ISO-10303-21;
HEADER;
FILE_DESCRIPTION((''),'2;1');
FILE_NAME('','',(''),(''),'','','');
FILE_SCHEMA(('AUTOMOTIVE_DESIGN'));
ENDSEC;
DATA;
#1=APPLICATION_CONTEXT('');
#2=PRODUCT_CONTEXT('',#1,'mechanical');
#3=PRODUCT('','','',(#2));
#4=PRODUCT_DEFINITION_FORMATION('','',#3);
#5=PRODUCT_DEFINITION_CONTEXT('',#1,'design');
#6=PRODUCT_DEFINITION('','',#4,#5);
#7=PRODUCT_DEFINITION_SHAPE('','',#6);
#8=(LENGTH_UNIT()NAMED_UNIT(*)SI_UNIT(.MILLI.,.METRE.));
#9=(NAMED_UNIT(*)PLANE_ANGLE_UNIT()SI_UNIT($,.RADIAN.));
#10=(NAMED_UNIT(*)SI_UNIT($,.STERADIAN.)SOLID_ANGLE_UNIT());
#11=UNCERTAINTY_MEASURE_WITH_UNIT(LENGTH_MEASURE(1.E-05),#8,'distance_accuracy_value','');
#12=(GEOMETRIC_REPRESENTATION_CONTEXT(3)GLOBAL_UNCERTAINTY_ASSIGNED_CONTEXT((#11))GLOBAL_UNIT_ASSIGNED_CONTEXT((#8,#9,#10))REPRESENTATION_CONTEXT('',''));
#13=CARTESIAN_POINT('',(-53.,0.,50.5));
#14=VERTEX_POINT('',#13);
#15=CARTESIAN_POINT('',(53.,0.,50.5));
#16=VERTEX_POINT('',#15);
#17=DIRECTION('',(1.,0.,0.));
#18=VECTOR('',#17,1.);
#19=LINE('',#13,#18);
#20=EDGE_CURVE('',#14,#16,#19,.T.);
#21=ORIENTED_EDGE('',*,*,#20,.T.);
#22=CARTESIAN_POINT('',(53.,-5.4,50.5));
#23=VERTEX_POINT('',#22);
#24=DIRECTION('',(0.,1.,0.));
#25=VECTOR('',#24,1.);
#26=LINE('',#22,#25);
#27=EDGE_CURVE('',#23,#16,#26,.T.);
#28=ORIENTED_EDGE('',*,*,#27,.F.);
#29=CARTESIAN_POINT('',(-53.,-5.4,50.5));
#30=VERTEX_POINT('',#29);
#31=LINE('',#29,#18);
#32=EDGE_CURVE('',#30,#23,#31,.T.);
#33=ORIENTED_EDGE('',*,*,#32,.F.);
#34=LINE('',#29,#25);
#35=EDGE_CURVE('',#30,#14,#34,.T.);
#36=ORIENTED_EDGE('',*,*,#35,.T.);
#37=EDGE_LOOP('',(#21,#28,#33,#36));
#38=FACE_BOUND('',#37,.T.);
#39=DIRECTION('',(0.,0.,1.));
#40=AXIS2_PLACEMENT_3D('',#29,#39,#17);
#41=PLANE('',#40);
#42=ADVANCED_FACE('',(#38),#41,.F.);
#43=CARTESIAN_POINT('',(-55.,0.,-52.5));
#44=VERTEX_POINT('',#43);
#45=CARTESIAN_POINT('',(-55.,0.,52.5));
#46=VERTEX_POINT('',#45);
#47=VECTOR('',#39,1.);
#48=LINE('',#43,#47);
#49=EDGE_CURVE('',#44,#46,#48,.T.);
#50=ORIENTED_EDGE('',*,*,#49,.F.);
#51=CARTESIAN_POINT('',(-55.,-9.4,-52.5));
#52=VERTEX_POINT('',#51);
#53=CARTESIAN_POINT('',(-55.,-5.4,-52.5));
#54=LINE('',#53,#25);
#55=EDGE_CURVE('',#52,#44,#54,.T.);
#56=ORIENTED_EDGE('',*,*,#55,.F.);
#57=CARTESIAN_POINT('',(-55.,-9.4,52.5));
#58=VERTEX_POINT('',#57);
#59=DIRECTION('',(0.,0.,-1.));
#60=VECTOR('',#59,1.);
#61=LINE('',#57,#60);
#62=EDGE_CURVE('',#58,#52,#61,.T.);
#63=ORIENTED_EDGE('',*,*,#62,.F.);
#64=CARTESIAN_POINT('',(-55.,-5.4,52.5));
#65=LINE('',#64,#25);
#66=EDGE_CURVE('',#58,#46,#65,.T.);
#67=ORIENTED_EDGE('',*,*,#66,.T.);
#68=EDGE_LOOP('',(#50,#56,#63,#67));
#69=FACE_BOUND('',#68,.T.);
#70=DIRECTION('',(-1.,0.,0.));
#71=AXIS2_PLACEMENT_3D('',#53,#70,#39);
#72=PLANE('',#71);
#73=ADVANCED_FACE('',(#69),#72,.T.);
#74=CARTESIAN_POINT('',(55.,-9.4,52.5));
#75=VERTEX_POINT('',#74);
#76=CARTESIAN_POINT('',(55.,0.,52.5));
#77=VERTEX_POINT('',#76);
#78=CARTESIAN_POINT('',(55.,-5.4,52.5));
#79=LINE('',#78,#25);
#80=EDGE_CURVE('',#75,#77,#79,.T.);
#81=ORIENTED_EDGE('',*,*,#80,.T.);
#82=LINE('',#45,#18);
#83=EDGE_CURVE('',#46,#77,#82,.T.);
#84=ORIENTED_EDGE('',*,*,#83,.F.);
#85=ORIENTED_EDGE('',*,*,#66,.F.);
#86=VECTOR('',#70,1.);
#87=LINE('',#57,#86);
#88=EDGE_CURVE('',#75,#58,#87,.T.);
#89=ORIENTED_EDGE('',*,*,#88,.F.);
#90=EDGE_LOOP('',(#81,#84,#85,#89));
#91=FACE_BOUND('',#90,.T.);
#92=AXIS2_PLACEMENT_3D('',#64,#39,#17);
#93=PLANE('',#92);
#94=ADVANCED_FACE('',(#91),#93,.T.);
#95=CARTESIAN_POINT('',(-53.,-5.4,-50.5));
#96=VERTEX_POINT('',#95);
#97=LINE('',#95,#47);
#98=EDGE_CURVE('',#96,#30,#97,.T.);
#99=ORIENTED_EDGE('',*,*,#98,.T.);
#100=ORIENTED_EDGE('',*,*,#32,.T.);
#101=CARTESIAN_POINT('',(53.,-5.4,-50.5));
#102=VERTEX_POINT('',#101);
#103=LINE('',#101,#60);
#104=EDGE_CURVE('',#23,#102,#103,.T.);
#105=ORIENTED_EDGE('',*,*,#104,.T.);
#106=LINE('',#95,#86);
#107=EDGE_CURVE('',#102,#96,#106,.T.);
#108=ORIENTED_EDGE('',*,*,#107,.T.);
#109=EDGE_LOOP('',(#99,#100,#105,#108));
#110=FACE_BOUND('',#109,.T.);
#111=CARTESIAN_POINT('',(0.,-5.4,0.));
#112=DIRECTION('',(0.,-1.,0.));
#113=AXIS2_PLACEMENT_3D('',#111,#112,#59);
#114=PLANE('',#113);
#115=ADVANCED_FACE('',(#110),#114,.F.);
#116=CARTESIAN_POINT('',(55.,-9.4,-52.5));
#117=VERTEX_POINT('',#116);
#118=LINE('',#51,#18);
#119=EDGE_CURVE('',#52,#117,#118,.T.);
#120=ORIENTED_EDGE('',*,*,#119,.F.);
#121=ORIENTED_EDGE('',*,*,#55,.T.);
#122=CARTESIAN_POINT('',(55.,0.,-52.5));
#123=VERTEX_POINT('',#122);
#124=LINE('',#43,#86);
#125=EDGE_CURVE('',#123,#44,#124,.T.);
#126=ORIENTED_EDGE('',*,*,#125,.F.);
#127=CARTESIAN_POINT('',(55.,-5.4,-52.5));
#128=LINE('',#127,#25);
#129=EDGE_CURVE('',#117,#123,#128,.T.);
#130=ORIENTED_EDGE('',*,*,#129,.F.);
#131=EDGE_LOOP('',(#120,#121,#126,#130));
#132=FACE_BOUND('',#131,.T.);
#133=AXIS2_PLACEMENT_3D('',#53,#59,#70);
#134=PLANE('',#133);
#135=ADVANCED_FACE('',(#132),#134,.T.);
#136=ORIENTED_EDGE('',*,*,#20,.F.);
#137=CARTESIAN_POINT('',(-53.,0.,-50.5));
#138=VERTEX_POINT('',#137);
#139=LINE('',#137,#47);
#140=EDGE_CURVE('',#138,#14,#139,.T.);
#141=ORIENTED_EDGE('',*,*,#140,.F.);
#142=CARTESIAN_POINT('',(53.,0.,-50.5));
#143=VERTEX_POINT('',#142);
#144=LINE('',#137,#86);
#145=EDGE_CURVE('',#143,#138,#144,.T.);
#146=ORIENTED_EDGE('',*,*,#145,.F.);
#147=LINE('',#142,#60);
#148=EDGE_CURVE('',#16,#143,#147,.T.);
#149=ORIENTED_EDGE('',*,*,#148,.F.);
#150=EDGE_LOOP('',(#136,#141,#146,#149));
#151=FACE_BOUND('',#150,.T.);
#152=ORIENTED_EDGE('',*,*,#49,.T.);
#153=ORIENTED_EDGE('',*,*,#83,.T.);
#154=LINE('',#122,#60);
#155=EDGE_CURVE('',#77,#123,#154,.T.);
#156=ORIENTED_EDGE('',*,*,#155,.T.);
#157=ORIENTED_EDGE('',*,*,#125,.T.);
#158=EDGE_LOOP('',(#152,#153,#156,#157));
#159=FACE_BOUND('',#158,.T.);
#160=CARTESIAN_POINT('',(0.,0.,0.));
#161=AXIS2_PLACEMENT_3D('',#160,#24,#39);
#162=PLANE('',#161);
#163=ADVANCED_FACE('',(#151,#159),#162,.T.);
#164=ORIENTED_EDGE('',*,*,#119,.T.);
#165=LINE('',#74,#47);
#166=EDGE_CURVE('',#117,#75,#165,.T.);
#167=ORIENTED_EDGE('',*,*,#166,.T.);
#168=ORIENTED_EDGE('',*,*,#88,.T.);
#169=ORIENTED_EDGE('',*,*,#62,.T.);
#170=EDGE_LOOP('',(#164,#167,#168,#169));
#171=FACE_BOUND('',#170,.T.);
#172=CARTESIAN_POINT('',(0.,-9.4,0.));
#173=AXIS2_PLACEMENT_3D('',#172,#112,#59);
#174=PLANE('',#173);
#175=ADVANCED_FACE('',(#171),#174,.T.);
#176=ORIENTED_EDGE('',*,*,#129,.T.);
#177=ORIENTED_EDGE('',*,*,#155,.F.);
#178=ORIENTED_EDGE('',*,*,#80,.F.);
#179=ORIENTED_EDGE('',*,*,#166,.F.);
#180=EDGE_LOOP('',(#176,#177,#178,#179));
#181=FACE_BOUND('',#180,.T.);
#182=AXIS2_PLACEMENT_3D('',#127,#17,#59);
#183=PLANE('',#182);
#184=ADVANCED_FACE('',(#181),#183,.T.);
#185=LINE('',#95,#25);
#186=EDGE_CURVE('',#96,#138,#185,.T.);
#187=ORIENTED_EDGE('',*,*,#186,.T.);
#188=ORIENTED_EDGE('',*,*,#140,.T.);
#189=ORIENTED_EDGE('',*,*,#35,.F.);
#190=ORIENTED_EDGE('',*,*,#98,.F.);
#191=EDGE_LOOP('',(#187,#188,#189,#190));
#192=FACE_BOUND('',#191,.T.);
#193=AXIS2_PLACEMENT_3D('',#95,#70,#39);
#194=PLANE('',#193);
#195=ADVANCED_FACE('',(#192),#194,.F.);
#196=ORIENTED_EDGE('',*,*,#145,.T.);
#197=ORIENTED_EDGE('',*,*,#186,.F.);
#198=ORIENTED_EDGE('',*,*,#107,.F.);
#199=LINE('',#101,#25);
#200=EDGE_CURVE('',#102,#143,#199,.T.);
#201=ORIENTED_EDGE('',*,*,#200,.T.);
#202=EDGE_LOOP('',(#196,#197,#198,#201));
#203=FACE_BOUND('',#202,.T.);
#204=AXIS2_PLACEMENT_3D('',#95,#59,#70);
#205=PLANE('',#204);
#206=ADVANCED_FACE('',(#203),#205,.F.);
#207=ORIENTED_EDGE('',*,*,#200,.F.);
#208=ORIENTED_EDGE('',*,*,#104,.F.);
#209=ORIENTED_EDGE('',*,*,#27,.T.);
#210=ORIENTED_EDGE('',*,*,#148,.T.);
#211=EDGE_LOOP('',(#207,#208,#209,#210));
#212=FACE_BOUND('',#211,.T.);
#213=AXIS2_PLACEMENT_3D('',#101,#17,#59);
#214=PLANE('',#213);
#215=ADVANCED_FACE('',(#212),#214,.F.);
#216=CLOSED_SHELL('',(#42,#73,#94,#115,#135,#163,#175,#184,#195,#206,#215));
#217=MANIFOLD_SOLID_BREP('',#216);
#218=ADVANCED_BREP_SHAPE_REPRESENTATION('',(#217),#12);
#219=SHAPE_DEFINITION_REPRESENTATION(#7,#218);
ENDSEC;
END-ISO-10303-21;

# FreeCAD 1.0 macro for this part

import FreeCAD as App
import Part
import Sketcher

V = App.Vector
Q = App.Units.Quantity

doc = App.newDocument("Part")
body = doc.addObject("PartDesign::Body", "Body")

# Sketch on XZ plane
sketch1 = doc.addObject("Sketcher::SketchObject", "Sketch")
body.addObject(sketch1)
sketch1.AttachmentSupport = (doc.XZ_Plane, [""])
sketch1.MapMode = "FlatFace"
sketch1.addGeometry([
    Part.LineSegment(V(-55, -52.5, 0), V(-55, 52.5, 0)),  # 0
    Part.LineSegment(V(-55, 52.5, 0), V(55, 52.5, 0)),  # 1
    Part.LineSegment(V(55, 52.5, 0), V(55, -52.5, 0)),  # 2
    Part.LineSegment(V(55, -52.5, 0), V(-55, -52.5, 0)),  # 3
    Part.LineSegment(V(53, 50.5, 0), V(-53, 50.5, 0)),  # 4
    Part.LineSegment(V(-53, 50.5, 0), V(-53, -50.5, 0)),  # 5
    Part.LineSegment(V(-53, -50.5, 0), V(53, -50.5, 0)),  # 6
    Part.LineSegment(V(53, -50.5, 0), V(53, 50.5, 0)),  # 7
], False)
sketch1.addConstraint([
    Sketcher.Constraint("Coincident", 0, 2, 1, 1),
    Sketcher.Constraint("Coincident", 1, 2, 2, 1),
    Sketcher.Constraint("Coincident", 2, 2, 3, 1),
    Sketcher.Constraint("Coincident", 3, 2, 0, 1),
    Sketcher.Constraint("Coincident", 4, 2, 5, 1),
    Sketcher.Constraint("Coincident", 5, 2, 6, 1),
    Sketcher.Constraint("Coincident", 6, 2, 7, 1),
    Sketcher.Constraint("Coincident", 7, 2, 4, 1),
    Sketcher.Constraint("Vertical", 0),
    Sketcher.Constraint("Horizontal", 1),
    Sketcher.Constraint("Vertical", 2),
    Sketcher.Constraint("Horizontal", 3),
    Sketcher.Constraint("Horizontal", 4),
    Sketcher.Constraint("Vertical", 5),
    Sketcher.Constraint("Horizontal", 6),
    Sketcher.Constraint("Vertical", 7),
    Sketcher.Constraint("Symmetric", 0, 2, 2, 2, -1, 1),
    Sketcher.Constraint("Symmetric", 4, 2, 6, 2, -1, 1),
    Sketcher.Constraint("DistanceX", 1, 1, 1, 2, Q("110 mm")),
    Sketcher.Constraint("DistanceX", 4, 2, 4, 1, Q("106 mm")),
    Sketcher.Constraint("DistanceY", 0, 1, 0, 2, Q("105 mm")),
    Sketcher.Constraint("DistanceY", 5, 2, 5, 1, Q("101 mm")),
])
pad1 = doc.addObject("PartDesign::Pad", "Pad")
body.addObject(pad1)
pad1.Profile = sketch1
pad1.Length = 5.4

# Sketch on XZ plane
sketch2 = doc.addObject("Sketcher::SketchObject", "Sketch001")
body.addObject(sketch2)
sketch2.AttachmentSupport = (doc.XZ_Plane, [""])
sketch2.MapMode = "FlatFace"
sketch2.AttachmentOffset = App.Placement(V(0, 0, 5.4), App.Rotation())
sketch2.addGeometry([
    Part.LineSegment(V(-55, 52.5, 0), V(-55, -52.5, 0)),
    Part.LineSegment(V(-55, -52.5, 0), V(55, -52.5, 0)),
    Part.LineSegment(V(55, -52.5, 0), V(55, 52.5, 0)),
    Part.LineSegment(V(55, 52.5, 0), V(-55, 52.5, 0)),
], False)
sketch2.addConstraint([
    Sketcher.Constraint("Coincident", 0, 2, 1, 1),
    Sketcher.Constraint("Coincident", 1, 2, 2, 1),
    Sketcher.Constraint("Coincident", 2, 2, 3, 1),
    Sketcher.Constraint("Coincident", 3, 2, 0, 1),
    Sketcher.Constraint("Vertical", 0),
    Sketcher.Constraint("Horizontal", 1),
    Sketcher.Constraint("Vertical", 2),
    Sketcher.Constraint("Horizontal", 3),
    Sketcher.Constraint("Symmetric", 0, 2, 2, 2, -1, 1),
    Sketcher.Constraint("DistanceX", 1, 1, 1, 2, Q("110 mm")),
    Sketcher.Constraint("DistanceY", 0, 2, 0, 1, Q("105 mm")),
])
pad2 = doc.addObject("PartDesign::Pad", "Pad001")
body.addObject(pad2)
pad2.Profile = sketch2
pad2.Length = 4

doc.recompute()
